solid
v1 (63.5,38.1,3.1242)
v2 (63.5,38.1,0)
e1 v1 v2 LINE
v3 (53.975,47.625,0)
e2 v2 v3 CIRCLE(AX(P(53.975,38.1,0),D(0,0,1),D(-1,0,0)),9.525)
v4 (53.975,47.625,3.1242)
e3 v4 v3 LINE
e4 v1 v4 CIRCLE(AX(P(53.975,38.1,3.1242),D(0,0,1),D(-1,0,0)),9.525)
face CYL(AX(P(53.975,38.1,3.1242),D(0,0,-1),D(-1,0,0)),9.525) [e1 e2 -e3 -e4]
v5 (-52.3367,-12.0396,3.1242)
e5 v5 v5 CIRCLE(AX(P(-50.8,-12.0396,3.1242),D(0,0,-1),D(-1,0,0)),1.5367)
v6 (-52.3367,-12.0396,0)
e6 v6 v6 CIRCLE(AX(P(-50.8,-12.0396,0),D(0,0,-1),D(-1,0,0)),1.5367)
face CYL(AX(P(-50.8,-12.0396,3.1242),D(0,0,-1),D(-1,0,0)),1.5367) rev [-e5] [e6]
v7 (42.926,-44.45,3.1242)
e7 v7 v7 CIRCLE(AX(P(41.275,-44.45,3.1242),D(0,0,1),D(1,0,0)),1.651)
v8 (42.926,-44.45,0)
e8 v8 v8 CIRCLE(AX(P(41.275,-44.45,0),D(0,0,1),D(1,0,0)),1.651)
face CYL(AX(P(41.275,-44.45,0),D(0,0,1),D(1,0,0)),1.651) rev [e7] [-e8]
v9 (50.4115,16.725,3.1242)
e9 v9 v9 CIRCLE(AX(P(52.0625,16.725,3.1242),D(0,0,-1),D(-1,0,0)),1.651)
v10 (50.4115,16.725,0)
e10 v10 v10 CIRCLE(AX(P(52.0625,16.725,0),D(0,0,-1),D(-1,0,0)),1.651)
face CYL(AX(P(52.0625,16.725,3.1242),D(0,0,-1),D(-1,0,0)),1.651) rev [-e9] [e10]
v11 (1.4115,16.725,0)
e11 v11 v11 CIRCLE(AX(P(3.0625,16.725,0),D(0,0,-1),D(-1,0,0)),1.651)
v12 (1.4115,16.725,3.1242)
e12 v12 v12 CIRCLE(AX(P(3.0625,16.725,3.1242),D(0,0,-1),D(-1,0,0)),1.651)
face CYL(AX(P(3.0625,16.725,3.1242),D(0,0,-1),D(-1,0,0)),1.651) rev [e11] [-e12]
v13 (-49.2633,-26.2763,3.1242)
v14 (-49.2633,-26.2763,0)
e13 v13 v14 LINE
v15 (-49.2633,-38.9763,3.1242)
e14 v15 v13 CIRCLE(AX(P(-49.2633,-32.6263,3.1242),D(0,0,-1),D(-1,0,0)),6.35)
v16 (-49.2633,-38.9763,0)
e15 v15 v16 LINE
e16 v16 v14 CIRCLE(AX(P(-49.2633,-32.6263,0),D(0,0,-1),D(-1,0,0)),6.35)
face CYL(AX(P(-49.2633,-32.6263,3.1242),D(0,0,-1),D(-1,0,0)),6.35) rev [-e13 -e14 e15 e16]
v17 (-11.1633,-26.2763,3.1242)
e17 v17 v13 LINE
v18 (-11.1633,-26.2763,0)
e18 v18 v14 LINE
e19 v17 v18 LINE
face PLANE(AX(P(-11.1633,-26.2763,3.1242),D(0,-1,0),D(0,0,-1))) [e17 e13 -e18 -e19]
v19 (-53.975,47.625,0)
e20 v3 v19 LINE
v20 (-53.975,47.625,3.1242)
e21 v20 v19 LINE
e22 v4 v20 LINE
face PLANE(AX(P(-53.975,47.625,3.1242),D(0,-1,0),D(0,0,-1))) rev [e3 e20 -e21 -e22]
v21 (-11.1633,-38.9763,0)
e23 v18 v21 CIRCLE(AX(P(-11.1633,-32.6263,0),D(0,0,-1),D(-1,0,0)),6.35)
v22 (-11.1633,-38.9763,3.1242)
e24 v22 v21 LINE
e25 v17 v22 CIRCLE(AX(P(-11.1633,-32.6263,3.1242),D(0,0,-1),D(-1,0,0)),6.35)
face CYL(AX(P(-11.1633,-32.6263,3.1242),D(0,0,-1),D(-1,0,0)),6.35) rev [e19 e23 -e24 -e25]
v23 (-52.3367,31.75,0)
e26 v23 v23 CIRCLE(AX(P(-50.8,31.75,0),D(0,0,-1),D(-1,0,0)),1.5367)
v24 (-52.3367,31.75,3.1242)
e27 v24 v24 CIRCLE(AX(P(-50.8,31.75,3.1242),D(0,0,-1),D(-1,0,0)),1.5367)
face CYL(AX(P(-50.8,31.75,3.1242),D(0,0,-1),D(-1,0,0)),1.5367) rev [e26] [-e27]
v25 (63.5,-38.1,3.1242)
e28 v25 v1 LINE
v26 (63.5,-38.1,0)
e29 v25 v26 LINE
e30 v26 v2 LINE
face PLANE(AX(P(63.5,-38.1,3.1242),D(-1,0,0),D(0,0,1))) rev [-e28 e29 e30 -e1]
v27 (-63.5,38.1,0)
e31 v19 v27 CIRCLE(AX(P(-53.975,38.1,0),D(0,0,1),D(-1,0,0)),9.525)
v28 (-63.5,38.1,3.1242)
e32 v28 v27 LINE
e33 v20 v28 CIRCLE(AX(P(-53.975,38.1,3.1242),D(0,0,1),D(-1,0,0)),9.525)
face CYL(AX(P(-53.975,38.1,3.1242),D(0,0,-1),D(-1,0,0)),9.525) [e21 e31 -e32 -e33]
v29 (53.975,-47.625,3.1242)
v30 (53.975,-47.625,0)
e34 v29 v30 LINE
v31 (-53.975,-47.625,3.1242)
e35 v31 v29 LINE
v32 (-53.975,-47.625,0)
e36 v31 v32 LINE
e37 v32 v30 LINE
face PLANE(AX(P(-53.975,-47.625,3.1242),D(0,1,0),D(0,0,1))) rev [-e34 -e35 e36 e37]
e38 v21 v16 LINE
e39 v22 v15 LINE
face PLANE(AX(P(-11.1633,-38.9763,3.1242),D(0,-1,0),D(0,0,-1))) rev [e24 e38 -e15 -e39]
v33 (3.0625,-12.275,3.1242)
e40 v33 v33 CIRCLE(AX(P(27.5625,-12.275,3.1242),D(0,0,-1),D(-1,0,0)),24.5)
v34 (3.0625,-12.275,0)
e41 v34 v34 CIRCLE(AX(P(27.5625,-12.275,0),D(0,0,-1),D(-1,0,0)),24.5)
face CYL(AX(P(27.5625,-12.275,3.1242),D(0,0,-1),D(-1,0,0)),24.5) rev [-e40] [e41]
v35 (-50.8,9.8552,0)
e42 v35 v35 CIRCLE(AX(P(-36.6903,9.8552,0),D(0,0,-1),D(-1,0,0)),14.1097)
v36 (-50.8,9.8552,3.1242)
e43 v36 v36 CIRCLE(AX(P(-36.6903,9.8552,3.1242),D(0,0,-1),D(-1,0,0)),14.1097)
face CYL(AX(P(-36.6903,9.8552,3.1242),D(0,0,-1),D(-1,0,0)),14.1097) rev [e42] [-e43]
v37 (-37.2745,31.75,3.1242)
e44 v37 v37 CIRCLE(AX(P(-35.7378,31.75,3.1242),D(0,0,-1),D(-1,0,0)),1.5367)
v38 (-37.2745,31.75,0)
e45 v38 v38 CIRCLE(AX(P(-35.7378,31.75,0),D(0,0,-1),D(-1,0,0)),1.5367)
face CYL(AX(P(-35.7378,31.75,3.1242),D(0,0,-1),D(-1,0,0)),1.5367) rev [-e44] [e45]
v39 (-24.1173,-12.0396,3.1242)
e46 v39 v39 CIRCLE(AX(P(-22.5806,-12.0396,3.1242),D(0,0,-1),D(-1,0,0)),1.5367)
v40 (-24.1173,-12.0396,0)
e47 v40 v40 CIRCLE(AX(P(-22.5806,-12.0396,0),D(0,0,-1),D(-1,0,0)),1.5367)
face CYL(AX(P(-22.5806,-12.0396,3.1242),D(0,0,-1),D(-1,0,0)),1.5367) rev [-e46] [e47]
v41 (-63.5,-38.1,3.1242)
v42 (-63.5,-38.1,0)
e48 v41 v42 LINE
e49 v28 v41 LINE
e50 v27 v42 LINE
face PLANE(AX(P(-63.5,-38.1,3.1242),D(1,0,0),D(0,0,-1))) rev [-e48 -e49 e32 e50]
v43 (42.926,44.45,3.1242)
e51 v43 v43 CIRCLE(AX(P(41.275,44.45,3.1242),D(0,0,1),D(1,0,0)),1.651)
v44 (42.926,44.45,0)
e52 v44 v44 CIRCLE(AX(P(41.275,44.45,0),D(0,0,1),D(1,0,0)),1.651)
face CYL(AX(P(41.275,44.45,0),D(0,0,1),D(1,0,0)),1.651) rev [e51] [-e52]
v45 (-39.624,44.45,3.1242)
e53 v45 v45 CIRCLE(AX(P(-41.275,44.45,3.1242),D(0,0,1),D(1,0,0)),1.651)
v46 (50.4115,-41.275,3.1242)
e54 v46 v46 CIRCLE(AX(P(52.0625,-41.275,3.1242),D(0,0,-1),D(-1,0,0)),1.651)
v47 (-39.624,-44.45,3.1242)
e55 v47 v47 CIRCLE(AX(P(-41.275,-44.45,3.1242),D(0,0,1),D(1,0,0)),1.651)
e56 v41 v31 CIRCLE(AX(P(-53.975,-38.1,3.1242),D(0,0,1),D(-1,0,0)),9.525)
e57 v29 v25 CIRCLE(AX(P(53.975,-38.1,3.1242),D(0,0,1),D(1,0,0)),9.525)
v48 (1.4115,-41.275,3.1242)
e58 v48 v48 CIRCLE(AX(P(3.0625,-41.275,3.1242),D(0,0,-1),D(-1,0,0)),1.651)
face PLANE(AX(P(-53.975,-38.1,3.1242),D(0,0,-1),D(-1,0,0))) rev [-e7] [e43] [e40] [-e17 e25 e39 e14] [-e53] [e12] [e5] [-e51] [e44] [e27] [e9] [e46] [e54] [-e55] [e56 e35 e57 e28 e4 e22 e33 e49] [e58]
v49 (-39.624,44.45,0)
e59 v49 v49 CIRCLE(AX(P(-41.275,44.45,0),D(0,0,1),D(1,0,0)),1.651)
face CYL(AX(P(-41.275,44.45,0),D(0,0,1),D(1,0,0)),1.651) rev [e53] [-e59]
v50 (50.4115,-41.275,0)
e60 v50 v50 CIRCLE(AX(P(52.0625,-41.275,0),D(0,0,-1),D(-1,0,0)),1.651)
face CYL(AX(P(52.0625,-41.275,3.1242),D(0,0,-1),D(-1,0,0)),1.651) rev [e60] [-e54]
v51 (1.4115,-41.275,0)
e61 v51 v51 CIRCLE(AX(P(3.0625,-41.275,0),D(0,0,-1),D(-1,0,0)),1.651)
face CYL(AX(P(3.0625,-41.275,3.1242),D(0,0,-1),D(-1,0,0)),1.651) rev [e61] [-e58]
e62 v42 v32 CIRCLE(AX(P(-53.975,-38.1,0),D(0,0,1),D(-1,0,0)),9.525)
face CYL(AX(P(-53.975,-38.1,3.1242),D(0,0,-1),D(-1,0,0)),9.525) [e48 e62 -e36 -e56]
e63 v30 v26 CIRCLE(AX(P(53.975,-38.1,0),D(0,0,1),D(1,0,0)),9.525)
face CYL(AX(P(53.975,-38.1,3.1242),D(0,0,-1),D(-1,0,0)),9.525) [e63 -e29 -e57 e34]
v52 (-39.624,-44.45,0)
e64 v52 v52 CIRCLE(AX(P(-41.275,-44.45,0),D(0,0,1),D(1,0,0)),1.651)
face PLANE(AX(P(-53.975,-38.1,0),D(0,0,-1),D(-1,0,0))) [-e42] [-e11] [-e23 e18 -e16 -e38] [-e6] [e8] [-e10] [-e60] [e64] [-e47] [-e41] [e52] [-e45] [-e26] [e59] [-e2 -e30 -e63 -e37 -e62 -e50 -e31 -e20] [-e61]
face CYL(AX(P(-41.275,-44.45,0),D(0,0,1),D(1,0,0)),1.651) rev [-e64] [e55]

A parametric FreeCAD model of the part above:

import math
import FreeCAD as App
import Part
import Sketcher
from FreeCAD import Vector
Q = App.Units.Quantity

doc = App.newDocument("Part")
body = doc.addObject("PartDesign::Body", "Body")

sketch1 = doc.addObject("Sketcher::SketchObject", "Sketch")
body.addObject(sketch1)
sketch1.AttachmentSupport = (doc.XY_Plane, [""])
sketch1.MapMode = "FlatFace"
sketch1.addGeometry(Part.LineSegment(Vector(-54, -48, 0), Vector(54, -48, 0)), False)
sketch1.addGeometry(Part.ArcOfCircle(Part.Circle(Vector(54, -38, 0), Vector(0, 0, 1), 10), math.radians(-90), math.radians(0)), False)
sketch1.addGeometry(Part.LineSegment(Vector(64, -38, 0), Vector(64, 38, 0)), False)
sketch1.addGeometry(Part.ArcOfCircle(Part.Circle(Vector(54, 38, 0), Vector(0, 0, 1), 10), math.radians(0), math.radians(90)), False)
sketch1.addGeometry(Part.LineSegment(Vector(54, 48, 0), Vector(-54, 48, 0)), False)
sketch1.addGeometry(Part.ArcOfCircle(Part.Circle(Vector(-54, 38, 0), Vector(0, 0, 1), 10), math.radians(90), math.radians(180)), False)
sketch1.addGeometry(Part.LineSegment(Vector(-64, 38, 0), Vector(-64, -38, 0)), False)
sketch1.addGeometry(Part.ArcOfCircle(Part.Circle(Vector(-54, -38, 0), Vector(0, 0, 1), 10), math.radians(180), math.radians(270)), False)
sketch1.addConstraint(Sketcher.Constraint("Tangent", 0, 2, 1, 1))
sketch1.addConstraint(Sketcher.Constraint("Tangent", 1, 2, 2, 1))
sketch1.addConstraint(Sketcher.Constraint("Tangent", 2, 2, 3, 1))
sketch1.addConstraint(Sketcher.Constraint("Tangent", 3, 2, 4, 1))
sketch1.addConstraint(Sketcher.Constraint("Tangent", 4, 2, 5, 1))
sketch1.addConstraint(Sketcher.Constraint("Tangent", 5, 2, 6, 1))
sketch1.addConstraint(Sketcher.Constraint("Tangent", 6, 2, 7, 1))
sketch1.addConstraint(Sketcher.Constraint("Tangent", 7, 2, 0, 1))
sketch1.addConstraint(Sketcher.Constraint("Horizontal", 0))
sketch1.addConstraint(Sketcher.Constraint("Vertical", 2))
sketch1.addConstraint(Sketcher.Constraint("Horizontal", 4))
sketch1.addConstraint(Sketcher.Constraint("Vertical", 6))
sketch1.addConstraint(Sketcher.Constraint("Equal", 1, 3))
sketch1.addConstraint(Sketcher.Constraint("Equal", 3, 5))
sketch1.addConstraint(Sketcher.Constraint("Equal", 5, 7))
sketch1.addConstraint(Sketcher.Constraint("Symmetric", 1, 3, 5, 3, -1, 1))
sketch1.addConstraint(Sketcher.Constraint("DistanceY", 2, 1, 2, 2, Q("3 in")))
sketch1.addConstraint(Sketcher.Constraint("Radius", 1, Q("0.375 in")))
sketch1.addConstraint(Sketcher.Constraint("DistanceX", 0, 1, 0, 2, Q("4.25 in")))
pad1 = doc.addObject("PartDesign::Pad", "Pad")
body.addObject(pad1)
pad1.Profile = sketch1
pad1.Length = Q("0.123 in")

sketch2 = doc.addObject("Sketcher::SketchObject", "Sketch001")
body.addObject(sketch2)
sketch2.AttachmentSupport = (doc.XY_Plane, [""])
sketch2.MapMode = "FlatFace"
sketch2.AttachmentOffset = App.Placement(Vector(0, 0, 0.123 * 25.4), App.Rotation())
sketch2.addGeometry(Part.Circle(Vector(-41.3, 44.5, 0), Vector(0, 0, 1), 1.7), False)
sketch2.addGeometry(Part.Circle(Vector(41.3, 44.5, 0), Vector(0, 0, 1), 1.7), False)
sketch2.addGeometry(Part.Circle(Vector(41.3, -44.5, 0), Vector(0, 0, 1), 1.7), False)
sketch2.addGeometry(Part.Circle(Vector(-41.3, -44.5, 0), Vector(0, 0, 1), 1.7), False)
sketch2.addConstraint(Sketcher.Constraint("Equal", 0, 1))
sketch2.addConstraint(Sketcher.Constraint("Equal", 1, 2))
sketch2.addConstraint(Sketcher.Constraint("Equal", 2, 3))
sketch2.addConstraint(Sketcher.Constraint("Symmetric", 0, 3, 2, 3, -1, 1))
sketch2.addConstraint(Sketcher.Constraint("Symmetric", 1, 3, 3, 3, -1, 1))
sketch2.addConstraint(Sketcher.Constraint("Symmetric", 0, 3, 1, 3, -2))
sketch2.addConstraint(Sketcher.Constraint("Diameter", 0, Q("0.13 in")))
sketch2.addConstraint(Sketcher.Constraint("DistanceY", 2, 3, 1, 3, Q("3.5 in")))
sketch2.addConstraint(Sketcher.Constraint("DistanceX", 0, 3, 1, 3, Q("3.25 in")))
pocket1 = doc.addObject("PartDesign::Pocket", "Pocket")
body.addObject(pocket1)
pocket1.Profile = sketch2
pocket1.Type = "ThroughAll"

sketch3 = doc.addObject("Sketcher::SketchObject", "Sketch002")
body.addObject(sketch3)
sketch3.AttachmentSupport = (doc.XY_Plane, [""])
sketch3.MapMode = "FlatFace"
sketch3.addGeometry(Part.ArcOfCircle(Part.Circle(Vector(27.6, -12.3, 0), Vector(0, 0, 1), 24.5), math.radians(-90), math.radians(0)), False)
sketch3.addGeometry(Part.ArcOfCircle(Part.Circle(Vector(27.6, -12.3, 0), Vector(0, 0, 1), 24.5), math.radians(180), math.radians(270)), False)
sketch3.addGeometry(Part.ArcOfCircle(Part.Circle(Vector(27.6, -12.3, 0), Vector(0, 0, 1), 24.5), math.radians(90), math.radians(180)), False)
sketch3.addGeometry(Part.ArcOfCircle(Part.Circle(Vector(27.6, -12.3, 0), Vector(0, 0, 1), 24.5), math.radians(0), math.radians(90)), False)
sketch3.addGeometry(Part.Circle(Vector(3.1, 16.7, 0), Vector(0, 0, 1), 1.7), False)
sketch3.addGeometry(Part.Circle(Vector(52.1, 16.7, 0), Vector(0, 0, 1), 1.7), False)
sketch3.addGeometry(Part.Circle(Vector(52.1, -41.3, 0), Vector(0, 0, 1), 1.7), False)
sketch3.addGeometry(Part.Circle(Vector(3.1, -41.3, 0), Vector(0, 0, 1), 1.7), False)
sketch3.addConstraint(Sketcher.Constraint("Tangent", 0, 1, 1, 2))
sketch3.addConstraint(Sketcher.Constraint("Tangent", 1, 1, 2, 2))
sketch3.addConstraint(Sketcher.Constraint("Tangent", 2, 1, 3, 2))
sketch3.addConstraint(Sketcher.Constraint("Tangent", 3, 1, 0, 2))
sketch3.addConstraint(Sketcher.Constraint("Equal", 0, 1))
sketch3.addConstraint(Sketcher.Constraint("Equal", 4, 5))
sketch3.addConstraint(Sketcher.Constraint("Equal", 5, 6))
sketch3.addConstraint(Sketcher.Constraint("Equal", 6, 7))
sketch3.addConstraint(Sketcher.Constraint("Horizontal", 4, 3, 5, 3))
sketch3.addConstraint(Sketcher.Constraint("Horizontal", 6, 3, 7, 3))
sketch3.addConstraint(Sketcher.Constraint("Horizontal", 3, 3, 1, 1))
sketch3.addConstraint(Sketcher.Constraint("Horizontal", 1, 1, 3, 1))
sketch3.addConstraint(Sketcher.Constraint("Vertical", 5, 3, 6, 3))
sketch3.addConstraint(Sketcher.Constraint("Vertical", 4, 3, 7, 3))
sketch3.addConstraint(Sketcher.Constraint("Vertical", 3, 3, 0, 1))
sketch3.addConstraint(Sketcher.Constraint("Vertical", 7, 3, 1, 1))
sketch3.addConstraint(Sketcher.Constraint("Vertical", 0, 1, 2, 1))
sketch3.addConstraint(Sketcher.Constraint("Vertical", 6, 3, 3, 1))
sketch3.addConstraint(Sketcher.Constraint("Diameter", 4, Q("0.13 in")))
sketch3.addConstraint(Sketcher.Constraint("Radius", 0, 24.5))
sketch3.addConstraint(Sketcher.Constraint("DistanceY", 6, 3, -1, 1, Q("1.625 in")))
sketch3.addConstraint(Sketcher.Constraint("DistanceX", -1, 1, 0, 3, 27.5625))
sketch3.addConstraint(Sketcher.Constraint("DistanceY", 0, 3, -1, 1, 12.275))
sketch3.addConstraint(Sketcher.Constraint("DistanceY", -1, 1, 4, 3, 16.725))
pocket2 = doc.addObject("PartDesign::Pocket", "Pocket001")
body.addObject(pocket2)
pocket2.Profile = sketch3
pocket2.Length = Q("0.123 in")
pocket2.Reversed = True

sketch4 = doc.addObject("Sketcher::SketchObject", "Sketch003")
body.addObject(sketch4)
sketch4.AttachmentSupport = (doc.XY_Plane, [""])
sketch4.MapMode = "FlatFace"
sketch4.addGeometry(Part.Circle(Vector(-36.7, 9.9, 0), Vector(0, 0, 1), 14.1), False)
sketch4.addGeometry(Part.Circle(Vector(-35.7, 31.8, 0), Vector(0, 0, 1), 1.5), False)
sketch4.addGeometry(Part.Circle(Vector(-50.8, 31.8, 0), Vector(0, 0, 1), 1.5), False)
sketch4.addGeometry(Part.Circle(Vector(-50.8, -12, 0), Vector(0, 0, 1), 1.5), False)
sketch4.addGeometry(Part.Circle(Vector(-22.6, -12, 0), Vector(0, 0, 1), 1.5), False)
sketch4.addGeometry(Part.LineSegment(Vector(-49.3, -26.3, 0), Vector(-11.2, -26.3, 0)), False)
sketch4.addGeometry(Part.ArcOfCircle(Part.Circle(Vector(-11.2, -32.6, 0), Vector(0, 0, 1), 6.3), math.radians(-90), math.radians(90)), False)
sketch4.addGeometry(Part.LineSegment(Vector(-11.2, -39, 0), Vector(-49.3, -39, 0)), False)
sketch4.addGeometry(Part.ArcOfCircle(Part.Circle(Vector(-49.3, -32.6, 0), Vector(0, 0, 1), 6.3), math.radians(90), math.radians(270)), False)
sketch4.addConstraint(Sketcher.Constraint("Tangent", 5, 2, 6, 2))
sketch4.addConstraint(Sketcher.Constraint("Tangent", 6, 1, 7, 1))
sketch4.addConstraint(Sketcher.Constraint("Tangent", 7, 2, 8, 2))
sketch4.addConstraint(Sketcher.Constraint("Tangent", 8, 1, 5, 1))
sketch4.addConstraint(Sketcher.Constraint("Horizontal", 5))
sketch4.addConstraint(Sketcher.Constraint("Horizontal", 7))
sketch4.addConstraint(Sketcher.Constraint("Equal", 1, 2))
sketch4.addConstraint(Sketcher.Constraint("Equal", 2, 3))
sketch4.addConstraint(Sketcher.Constraint("Equal", 3, 4))
sketch4.addConstraint(Sketcher.Constraint("Horizontal", 1, 3, 2, 3))
sketch4.addConstraint(Sketcher.Constraint("Horizontal", 3, 3, 4, 3))
sketch4.addConstraint(Sketcher.Constraint("Vertical", 2, 3, 3, 3))
sketch4.addConstraint(Sketcher.Constraint("Radius", 6, Q("0.25 in")))
sketch4.addConstraint(Sketcher.Constraint("Diameter", 0, Q("1.111 in")))
sketch4.addConstraint(Sketcher.Constraint("Diameter", 1, Q("0.121 in")))
sketch4.addConstraint(Sketcher.Constraint("DistanceX", 5, 1, 5, 2, Q("1.5 in")))
sketch4.addConstraint(Sketcher.Constraint("DistanceX", 2, 3, -1, 1, Q("2 in")))
sketch4.addConstraint(Sketcher.Constraint("DistanceY", -1, 1, 1, 3, Q("1.25 in")))
sketch4.addConstraint(Sketcher.Constraint("DistanceY", -1, 1, 0, 3, Q("0.388 in")))
sketch4.addConstraint(Sketcher.Constraint("DistanceX", 1, 3, -1, 1, Q("1.407 in")))
sketch4.addConstraint(Sketcher.Constraint("DistanceY", 3, 3, -1, 1, Q("0.474 in")))
sketch4.addConstraint(Sketcher.Constraint("DistanceX", 4, 3, -1, 1, Q("0.889 in")))
sketch4.addConstraint(Sketcher.Constraint("DistanceX", 0, 3, 6, 3, Q("1.005 in")))
sketch4.addConstraint(Sketcher.Constraint("DistanceX", 0, 3, -1, 1, Q("1.4445 in")))
sketch4.addConstraint(Sketcher.Constraint("DistanceY", 6, 3, -1, 1, Q("1.2845 in")))
pocket3 = doc.addObject("PartDesign::Pocket", "Pocket002")
body.addObject(pocket3)
pocket3.Profile = sketch4
pocket3.Type = "ThroughAll"
pocket3.Reversed = True

doc.recompute()
